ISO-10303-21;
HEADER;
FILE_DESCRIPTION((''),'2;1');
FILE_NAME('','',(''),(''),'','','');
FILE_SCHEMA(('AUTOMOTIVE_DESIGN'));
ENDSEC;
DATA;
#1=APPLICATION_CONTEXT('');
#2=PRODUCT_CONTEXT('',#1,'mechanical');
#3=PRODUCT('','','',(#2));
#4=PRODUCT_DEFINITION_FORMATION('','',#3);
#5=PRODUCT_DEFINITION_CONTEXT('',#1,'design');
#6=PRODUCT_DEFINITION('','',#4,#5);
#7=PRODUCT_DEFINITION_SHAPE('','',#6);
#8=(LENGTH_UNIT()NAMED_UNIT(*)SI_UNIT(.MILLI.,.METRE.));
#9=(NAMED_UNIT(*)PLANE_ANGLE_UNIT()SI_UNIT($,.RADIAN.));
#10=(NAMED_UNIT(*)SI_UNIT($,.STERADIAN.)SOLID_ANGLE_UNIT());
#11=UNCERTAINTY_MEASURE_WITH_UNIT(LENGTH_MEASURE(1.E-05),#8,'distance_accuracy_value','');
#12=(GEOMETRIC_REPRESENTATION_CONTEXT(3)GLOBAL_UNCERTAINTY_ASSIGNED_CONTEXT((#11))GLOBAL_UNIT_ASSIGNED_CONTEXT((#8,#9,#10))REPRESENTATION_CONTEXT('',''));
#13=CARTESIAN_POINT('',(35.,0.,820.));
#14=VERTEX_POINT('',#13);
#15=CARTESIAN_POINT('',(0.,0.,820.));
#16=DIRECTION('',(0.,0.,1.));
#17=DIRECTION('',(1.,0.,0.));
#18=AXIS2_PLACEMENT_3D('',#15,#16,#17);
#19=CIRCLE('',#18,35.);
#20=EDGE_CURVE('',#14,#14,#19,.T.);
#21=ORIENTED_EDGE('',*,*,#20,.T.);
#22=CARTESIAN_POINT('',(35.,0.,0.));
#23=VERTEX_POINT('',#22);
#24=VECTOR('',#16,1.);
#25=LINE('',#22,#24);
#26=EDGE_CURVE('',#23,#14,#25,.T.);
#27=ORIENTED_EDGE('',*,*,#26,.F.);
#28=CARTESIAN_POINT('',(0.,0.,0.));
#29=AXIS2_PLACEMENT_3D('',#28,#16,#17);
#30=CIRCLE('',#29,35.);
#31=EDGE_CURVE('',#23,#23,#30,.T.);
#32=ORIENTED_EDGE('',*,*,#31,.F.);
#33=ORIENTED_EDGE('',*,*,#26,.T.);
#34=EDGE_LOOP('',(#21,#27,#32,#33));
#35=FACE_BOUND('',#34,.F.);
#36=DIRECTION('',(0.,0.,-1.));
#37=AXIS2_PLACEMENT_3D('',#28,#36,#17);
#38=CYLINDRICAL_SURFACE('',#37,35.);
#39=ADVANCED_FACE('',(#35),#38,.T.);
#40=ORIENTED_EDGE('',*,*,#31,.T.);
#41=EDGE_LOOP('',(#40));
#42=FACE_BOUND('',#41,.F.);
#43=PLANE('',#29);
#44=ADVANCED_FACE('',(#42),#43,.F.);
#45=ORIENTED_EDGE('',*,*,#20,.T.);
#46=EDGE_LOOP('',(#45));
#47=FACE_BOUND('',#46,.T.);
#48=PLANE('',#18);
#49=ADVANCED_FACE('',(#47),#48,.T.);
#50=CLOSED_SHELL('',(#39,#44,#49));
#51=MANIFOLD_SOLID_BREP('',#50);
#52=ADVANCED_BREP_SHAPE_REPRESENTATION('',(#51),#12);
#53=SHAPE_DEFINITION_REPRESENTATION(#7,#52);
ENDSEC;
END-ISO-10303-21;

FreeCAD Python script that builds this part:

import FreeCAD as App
import Part
import Sketcher
from FreeCAD import Vector
Q = App.Units.Quantity

doc = App.newDocument("Part")
body = doc.addObject("PartDesign::Body", "Body")

sketch1 = body.newObject("Sketcher::SketchObject", "Sketch")
sketch1.AttachmentSupport = (doc.getObject("XY_Plane"), [""])
sketch1.MapMode = "FlatFace"
sketch1.addGeometry(Part.Circle(Vector(0, 0, 0), Vector(0, 0, 1), 35), False)
sketch1.addConstraint(Sketcher.Constraint("Coincident", 0, 3, -1, 1))
sketch1.addConstraint(Sketcher.Constraint("Diameter", 0, Q("70 mm")))
pad1 = body.newObject("PartDesign::Pad", "Pad")
pad1.Profile = sketch1
pad1.Length = 820

doc.recompute()
